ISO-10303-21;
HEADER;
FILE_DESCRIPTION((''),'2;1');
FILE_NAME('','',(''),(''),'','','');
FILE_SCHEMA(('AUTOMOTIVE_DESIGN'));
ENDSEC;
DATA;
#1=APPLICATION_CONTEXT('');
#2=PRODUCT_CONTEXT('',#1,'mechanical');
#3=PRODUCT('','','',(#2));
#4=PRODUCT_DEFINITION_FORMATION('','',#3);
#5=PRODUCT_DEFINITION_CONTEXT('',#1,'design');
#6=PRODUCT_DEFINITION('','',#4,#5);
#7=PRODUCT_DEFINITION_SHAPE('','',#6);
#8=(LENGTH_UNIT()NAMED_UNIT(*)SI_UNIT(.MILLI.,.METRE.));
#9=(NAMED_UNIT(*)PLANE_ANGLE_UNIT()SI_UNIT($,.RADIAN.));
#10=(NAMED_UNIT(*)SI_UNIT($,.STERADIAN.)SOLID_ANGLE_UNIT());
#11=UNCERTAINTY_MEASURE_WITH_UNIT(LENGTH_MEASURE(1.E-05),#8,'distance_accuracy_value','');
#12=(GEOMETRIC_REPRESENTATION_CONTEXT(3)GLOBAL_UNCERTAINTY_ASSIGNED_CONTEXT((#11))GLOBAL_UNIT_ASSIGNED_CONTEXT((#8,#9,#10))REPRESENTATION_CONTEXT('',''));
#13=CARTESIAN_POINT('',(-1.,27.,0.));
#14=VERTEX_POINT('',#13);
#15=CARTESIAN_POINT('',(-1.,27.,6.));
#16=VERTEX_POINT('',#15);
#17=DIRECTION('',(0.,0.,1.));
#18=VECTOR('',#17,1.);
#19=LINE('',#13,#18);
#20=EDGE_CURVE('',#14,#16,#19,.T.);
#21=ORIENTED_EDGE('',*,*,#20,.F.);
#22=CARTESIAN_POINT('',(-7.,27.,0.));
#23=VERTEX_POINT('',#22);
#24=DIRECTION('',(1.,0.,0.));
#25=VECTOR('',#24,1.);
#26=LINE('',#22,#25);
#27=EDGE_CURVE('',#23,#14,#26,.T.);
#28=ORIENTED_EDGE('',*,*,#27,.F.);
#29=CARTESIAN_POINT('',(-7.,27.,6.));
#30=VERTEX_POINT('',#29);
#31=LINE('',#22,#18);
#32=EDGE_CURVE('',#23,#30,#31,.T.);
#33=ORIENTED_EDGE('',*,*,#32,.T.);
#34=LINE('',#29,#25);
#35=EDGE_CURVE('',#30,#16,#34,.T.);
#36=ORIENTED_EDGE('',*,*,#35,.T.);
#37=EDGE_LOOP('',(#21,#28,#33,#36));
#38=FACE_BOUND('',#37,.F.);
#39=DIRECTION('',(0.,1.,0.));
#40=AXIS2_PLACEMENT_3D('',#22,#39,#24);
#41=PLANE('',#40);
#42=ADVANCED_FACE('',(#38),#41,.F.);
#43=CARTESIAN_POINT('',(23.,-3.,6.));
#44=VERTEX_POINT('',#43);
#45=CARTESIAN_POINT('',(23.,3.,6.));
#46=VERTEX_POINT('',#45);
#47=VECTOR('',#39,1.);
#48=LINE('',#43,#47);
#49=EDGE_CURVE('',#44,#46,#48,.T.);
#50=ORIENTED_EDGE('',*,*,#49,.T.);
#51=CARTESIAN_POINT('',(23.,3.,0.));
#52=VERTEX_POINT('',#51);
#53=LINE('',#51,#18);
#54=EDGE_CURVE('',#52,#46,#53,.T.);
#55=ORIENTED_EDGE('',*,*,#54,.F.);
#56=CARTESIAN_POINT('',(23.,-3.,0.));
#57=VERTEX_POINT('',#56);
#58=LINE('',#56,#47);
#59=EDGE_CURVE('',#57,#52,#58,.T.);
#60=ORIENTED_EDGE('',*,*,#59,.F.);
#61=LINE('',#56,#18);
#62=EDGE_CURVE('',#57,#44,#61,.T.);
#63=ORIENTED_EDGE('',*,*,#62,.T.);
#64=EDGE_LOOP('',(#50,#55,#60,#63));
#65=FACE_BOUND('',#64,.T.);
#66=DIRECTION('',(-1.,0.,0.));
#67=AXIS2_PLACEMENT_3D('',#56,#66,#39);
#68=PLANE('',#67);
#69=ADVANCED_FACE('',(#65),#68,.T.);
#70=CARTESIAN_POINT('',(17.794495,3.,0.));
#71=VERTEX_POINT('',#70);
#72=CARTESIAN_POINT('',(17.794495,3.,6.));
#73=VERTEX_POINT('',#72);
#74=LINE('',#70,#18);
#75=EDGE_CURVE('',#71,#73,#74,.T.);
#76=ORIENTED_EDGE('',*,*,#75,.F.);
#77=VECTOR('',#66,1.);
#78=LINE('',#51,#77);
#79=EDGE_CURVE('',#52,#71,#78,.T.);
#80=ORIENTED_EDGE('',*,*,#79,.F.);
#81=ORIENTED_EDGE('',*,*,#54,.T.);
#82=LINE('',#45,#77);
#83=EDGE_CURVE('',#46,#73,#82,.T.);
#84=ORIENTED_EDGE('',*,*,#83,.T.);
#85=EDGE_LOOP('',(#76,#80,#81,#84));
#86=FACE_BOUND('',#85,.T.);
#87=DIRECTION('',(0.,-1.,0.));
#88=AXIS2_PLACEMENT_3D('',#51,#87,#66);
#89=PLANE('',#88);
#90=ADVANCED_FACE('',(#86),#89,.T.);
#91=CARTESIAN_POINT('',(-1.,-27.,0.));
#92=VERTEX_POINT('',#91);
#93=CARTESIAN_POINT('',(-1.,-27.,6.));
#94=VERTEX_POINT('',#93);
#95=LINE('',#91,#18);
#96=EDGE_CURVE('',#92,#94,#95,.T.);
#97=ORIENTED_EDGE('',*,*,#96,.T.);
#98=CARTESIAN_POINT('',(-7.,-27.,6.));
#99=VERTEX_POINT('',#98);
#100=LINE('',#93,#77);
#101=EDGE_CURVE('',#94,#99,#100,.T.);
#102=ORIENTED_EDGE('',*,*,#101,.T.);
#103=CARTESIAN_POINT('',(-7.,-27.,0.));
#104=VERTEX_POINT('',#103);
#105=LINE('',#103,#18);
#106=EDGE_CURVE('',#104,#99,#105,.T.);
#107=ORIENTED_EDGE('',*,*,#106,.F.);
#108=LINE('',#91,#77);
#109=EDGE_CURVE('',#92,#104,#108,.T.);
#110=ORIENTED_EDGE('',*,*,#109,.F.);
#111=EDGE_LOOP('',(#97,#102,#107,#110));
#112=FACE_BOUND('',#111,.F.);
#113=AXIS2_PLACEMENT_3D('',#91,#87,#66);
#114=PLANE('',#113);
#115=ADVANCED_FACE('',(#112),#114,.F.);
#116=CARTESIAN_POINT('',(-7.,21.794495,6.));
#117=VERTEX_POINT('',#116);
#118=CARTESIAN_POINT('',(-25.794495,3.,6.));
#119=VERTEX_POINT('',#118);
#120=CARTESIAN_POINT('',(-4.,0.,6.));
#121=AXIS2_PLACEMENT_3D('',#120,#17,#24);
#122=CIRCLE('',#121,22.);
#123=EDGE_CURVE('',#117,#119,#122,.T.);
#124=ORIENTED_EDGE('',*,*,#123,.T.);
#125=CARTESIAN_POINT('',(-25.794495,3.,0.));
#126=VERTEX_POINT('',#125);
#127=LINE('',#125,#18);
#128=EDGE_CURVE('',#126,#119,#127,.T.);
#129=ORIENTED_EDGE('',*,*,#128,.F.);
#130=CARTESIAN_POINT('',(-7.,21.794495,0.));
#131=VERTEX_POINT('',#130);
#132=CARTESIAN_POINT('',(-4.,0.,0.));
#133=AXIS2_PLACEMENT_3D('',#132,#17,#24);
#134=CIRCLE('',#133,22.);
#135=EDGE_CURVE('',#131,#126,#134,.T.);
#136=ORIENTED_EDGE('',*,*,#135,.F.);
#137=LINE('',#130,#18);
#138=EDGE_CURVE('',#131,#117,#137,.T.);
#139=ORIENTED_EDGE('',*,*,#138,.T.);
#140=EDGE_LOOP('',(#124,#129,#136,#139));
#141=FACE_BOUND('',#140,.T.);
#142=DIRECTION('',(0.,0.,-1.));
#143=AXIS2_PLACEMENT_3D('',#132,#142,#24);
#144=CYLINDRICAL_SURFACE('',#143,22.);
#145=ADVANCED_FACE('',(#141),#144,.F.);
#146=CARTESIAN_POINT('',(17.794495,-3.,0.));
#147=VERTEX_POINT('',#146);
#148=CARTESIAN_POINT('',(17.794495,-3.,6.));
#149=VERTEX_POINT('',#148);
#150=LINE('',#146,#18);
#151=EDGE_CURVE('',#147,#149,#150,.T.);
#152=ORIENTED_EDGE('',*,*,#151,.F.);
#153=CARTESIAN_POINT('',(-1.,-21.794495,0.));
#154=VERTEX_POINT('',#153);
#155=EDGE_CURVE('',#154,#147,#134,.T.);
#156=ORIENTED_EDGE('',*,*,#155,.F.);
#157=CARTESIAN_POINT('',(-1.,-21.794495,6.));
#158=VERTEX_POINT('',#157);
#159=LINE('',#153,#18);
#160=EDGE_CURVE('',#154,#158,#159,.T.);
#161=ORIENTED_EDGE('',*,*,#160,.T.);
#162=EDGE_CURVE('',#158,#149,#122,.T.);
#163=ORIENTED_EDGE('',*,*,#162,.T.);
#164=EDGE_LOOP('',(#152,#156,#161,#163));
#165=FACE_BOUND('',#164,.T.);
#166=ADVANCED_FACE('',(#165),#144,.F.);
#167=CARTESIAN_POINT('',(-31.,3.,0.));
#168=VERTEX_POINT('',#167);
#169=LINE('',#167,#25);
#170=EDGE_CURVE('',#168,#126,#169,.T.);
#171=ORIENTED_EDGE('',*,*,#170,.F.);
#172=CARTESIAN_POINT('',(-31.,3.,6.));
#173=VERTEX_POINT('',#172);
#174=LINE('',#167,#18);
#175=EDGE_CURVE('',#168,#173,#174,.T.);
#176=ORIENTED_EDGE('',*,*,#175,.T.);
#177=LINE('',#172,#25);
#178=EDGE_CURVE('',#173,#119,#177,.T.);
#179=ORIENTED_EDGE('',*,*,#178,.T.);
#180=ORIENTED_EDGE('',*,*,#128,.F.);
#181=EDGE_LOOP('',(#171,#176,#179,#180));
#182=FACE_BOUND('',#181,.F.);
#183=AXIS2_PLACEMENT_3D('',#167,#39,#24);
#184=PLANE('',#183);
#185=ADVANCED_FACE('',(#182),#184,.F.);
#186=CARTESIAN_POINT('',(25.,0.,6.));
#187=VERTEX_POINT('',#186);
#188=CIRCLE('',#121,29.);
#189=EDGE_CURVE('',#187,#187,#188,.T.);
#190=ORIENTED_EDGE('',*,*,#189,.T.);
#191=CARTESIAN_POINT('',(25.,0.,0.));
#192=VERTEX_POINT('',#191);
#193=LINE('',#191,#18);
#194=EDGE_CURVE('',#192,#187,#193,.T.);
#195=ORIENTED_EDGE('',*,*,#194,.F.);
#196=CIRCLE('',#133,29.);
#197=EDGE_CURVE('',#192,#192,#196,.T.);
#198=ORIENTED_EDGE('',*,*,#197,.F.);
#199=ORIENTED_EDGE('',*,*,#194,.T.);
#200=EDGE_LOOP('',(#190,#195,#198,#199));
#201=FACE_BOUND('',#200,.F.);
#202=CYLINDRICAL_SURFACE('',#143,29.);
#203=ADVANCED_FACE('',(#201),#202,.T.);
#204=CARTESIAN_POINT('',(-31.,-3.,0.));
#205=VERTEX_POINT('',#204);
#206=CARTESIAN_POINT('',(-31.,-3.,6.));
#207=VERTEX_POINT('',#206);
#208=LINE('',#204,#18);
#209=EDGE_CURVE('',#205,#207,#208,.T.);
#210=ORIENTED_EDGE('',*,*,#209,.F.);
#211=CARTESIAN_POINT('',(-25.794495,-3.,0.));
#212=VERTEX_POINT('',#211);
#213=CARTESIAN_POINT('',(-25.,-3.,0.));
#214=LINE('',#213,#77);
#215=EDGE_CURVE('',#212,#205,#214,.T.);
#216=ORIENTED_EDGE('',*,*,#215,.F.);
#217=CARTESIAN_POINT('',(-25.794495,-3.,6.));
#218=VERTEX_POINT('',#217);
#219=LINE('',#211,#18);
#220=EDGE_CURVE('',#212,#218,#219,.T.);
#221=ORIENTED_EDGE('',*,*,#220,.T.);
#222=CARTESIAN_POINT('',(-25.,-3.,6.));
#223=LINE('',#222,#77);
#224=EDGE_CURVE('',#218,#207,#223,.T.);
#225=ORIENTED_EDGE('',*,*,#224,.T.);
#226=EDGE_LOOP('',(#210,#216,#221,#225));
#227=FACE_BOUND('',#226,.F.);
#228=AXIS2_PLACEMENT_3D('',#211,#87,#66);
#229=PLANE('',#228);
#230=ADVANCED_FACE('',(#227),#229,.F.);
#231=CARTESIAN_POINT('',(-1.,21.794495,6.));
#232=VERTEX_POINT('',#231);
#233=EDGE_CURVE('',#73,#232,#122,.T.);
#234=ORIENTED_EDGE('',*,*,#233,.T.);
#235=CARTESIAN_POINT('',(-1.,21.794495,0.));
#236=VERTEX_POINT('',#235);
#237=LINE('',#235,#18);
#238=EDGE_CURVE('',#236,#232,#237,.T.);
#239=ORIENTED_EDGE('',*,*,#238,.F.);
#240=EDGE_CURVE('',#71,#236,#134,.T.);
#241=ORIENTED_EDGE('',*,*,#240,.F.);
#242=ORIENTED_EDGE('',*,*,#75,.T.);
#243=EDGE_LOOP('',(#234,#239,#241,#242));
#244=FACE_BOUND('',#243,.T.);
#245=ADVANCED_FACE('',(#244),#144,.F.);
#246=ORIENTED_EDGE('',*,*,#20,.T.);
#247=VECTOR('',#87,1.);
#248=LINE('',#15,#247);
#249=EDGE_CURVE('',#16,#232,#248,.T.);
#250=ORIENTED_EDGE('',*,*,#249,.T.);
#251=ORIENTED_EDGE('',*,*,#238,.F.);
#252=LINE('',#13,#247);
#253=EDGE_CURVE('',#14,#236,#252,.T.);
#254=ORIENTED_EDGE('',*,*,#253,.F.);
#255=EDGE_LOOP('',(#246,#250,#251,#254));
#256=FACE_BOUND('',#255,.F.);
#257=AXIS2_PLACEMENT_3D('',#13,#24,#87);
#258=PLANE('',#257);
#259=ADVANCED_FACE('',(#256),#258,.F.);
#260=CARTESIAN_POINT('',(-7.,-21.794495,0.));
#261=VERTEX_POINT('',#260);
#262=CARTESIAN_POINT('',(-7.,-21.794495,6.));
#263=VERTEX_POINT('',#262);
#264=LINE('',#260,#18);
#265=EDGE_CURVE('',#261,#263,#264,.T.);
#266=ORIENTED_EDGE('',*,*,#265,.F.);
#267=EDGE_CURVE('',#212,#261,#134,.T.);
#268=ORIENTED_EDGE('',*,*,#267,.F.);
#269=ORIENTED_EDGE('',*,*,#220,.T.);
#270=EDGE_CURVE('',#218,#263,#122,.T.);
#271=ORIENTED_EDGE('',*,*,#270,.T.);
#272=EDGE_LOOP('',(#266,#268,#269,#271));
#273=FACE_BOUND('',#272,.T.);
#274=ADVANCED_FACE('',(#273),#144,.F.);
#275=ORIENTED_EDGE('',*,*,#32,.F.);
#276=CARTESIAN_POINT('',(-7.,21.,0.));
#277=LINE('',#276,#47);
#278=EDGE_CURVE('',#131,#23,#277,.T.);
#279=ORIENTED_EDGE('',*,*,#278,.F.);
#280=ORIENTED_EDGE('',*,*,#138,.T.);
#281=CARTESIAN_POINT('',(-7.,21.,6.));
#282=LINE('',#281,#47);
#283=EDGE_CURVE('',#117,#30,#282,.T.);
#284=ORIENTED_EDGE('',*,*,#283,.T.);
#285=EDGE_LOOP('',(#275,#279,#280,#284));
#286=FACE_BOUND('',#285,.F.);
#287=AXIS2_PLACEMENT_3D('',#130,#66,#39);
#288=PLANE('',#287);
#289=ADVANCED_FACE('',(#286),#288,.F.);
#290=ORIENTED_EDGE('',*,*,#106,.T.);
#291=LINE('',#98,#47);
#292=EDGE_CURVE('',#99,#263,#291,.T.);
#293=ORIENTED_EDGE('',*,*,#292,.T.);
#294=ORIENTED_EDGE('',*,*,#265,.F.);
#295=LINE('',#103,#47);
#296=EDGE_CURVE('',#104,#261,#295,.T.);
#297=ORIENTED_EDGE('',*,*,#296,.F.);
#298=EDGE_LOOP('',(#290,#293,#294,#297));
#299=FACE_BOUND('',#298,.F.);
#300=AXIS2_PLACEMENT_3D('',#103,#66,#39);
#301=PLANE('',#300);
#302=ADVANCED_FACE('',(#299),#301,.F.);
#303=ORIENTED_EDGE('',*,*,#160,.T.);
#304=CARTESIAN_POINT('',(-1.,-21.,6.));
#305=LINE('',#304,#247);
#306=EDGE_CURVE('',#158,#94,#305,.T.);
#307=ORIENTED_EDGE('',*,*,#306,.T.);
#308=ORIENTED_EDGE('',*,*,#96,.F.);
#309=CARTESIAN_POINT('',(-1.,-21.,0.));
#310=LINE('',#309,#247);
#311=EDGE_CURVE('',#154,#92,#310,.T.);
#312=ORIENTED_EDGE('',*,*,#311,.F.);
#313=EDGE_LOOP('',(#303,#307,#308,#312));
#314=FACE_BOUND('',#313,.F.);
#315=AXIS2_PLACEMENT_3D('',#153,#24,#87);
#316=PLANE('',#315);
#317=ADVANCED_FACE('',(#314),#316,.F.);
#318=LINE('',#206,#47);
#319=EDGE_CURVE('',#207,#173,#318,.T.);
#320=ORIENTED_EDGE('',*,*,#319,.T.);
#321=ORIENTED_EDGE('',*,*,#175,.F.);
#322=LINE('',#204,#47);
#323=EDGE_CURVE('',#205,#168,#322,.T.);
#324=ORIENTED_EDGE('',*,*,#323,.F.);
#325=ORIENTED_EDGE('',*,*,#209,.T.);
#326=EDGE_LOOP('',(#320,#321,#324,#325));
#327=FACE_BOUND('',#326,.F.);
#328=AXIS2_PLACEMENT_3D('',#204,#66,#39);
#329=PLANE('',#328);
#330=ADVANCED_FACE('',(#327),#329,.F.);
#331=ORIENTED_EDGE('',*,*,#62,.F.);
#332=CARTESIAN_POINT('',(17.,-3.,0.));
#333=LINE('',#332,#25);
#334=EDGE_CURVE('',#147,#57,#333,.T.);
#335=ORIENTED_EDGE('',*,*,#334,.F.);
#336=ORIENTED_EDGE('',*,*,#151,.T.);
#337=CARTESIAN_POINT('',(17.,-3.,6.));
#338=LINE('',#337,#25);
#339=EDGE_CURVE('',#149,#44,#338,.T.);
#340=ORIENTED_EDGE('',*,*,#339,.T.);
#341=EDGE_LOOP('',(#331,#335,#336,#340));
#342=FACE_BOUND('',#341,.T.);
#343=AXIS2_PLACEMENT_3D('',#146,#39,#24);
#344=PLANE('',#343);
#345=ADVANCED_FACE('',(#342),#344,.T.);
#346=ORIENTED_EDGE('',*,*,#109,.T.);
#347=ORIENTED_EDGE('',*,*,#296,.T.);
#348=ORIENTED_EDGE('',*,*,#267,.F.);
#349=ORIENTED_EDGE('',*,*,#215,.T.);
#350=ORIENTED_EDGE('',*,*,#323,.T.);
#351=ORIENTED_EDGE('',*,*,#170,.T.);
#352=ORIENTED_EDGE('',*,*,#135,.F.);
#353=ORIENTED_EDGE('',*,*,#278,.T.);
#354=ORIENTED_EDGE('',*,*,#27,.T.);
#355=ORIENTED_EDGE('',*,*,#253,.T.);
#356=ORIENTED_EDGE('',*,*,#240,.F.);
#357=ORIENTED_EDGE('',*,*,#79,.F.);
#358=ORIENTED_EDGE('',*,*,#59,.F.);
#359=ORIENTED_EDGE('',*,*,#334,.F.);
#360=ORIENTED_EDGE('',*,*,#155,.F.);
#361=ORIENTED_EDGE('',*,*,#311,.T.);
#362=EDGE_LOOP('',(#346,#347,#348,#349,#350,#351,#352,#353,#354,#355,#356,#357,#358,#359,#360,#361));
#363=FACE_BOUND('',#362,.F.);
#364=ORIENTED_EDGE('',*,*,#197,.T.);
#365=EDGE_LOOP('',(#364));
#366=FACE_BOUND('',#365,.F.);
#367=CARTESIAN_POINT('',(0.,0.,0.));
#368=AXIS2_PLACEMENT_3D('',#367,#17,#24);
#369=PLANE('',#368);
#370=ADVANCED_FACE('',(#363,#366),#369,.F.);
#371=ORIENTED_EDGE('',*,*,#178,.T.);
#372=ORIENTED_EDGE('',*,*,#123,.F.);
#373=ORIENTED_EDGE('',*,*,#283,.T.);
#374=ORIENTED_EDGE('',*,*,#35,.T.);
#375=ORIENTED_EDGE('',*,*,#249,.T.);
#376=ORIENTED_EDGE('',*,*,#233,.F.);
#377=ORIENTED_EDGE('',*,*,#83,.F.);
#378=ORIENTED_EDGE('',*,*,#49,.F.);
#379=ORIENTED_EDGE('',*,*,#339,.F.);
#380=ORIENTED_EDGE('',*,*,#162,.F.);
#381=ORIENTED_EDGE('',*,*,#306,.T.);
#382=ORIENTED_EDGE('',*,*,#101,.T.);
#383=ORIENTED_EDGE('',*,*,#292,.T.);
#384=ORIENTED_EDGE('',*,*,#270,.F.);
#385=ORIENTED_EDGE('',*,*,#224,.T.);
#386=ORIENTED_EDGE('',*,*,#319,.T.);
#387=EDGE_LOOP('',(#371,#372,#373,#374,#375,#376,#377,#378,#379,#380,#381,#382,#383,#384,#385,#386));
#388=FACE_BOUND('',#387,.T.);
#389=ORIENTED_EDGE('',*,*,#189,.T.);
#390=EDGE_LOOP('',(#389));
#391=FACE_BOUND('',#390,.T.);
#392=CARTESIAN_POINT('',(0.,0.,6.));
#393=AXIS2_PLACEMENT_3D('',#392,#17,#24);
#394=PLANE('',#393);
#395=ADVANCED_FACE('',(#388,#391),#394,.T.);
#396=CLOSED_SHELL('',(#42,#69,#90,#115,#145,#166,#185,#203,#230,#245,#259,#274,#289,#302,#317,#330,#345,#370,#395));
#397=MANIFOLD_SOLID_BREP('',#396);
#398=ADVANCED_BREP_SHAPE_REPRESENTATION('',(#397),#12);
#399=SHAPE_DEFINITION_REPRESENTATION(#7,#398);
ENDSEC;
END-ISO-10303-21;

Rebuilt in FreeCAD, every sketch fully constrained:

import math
import FreeCAD as App
import Part
import Sketcher
from FreeCAD import Vector
Q = App.Units.Quantity

doc = App.newDocument("Part")
body = doc.addObject("PartDesign::Body", "Body")

# Sketch on XY plane
sketch1 = doc.addObject("Sketcher::SketchObject", "Sketch")
body.addObject(sketch1)
sketch1.AttachmentSupport = (doc.XY_Plane, [""])
sketch1.MapMode = "FlatFace"
sketch1.addGeometry(Part.Circle(Vector(-4, 0, 0), Vector(0, 0, 1), 29), False)
sketch1.addGeometry(Part.ArcOfCircle(Part.Circle(Vector(-4, 0, 0), Vector(0, 0, 1), 22), math.radians(-172), math.radians(-98)), False)
sketch1.addGeometry(Part.LineSegment(Vector(-26, -3, 0), Vector(-31, -3, 0)), False)
sketch1.addGeometry(Part.LineSegment(Vector(-31, -3, 0), Vector(-31, 3, 0)), False)
sketch1.addGeometry(Part.LineSegment(Vector(-31, 3, 0), Vector(-26, 3, 0)), False)
sketch1.addGeometry(Part.ArcOfCircle(Part.Circle(Vector(-4, 0, 0), Vector(0, 0, 1), 22), math.radians(98), math.radians(172)), False)
sketch1.addGeometry(Part.LineSegment(Vector(-7, 22, 0), Vector(-7, 27, 0)), False)
sketch1.addGeometry(Part.LineSegment(Vector(-7, 27, 0), Vector(-1, 27, 0)), False)
sketch1.addGeometry(Part.LineSegment(Vector(-1, 27, 0), Vector(-1, 22, 0)), False)
sketch1.addGeometry(Part.ArcOfCircle(Part.Circle(Vector(-4, 0, 0), Vector(0, 0, 1), 22), math.radians(8), math.radians(82)), False)
sketch1.addGeometry(Part.LineSegment(Vector(18, 3, 0), Vector(23, 3, 0)), False)
sketch1.addGeometry(Part.LineSegment(Vector(23, 3, 0), Vector(23, -3, 0)), False)
sketch1.addGeometry(Part.LineSegment(Vector(23, -3, 0), Vector(18, -3, 0)), False)
sketch1.addGeometry(Part.ArcOfCircle(Part.Circle(Vector(-4, 0, 0), Vector(0, 0, 1), 22), math.radians(-82), math.radians(-8)), False)
sketch1.addGeometry(Part.LineSegment(Vector(-1, -22, 0), Vector(-1, -27, 0)), False)
sketch1.addGeometry(Part.LineSegment(Vector(-1, -27, 0), Vector(-7, -27, 0)), False)
sketch1.addGeometry(Part.LineSegment(Vector(-7, -27, 0), Vector(-7, -22, 0)), False)
sketch1.addConstraint(Sketcher.Constraint("Coincident", 1, 1, 2, 1))
sketch1.addConstraint(Sketcher.Constraint("Coincident", 2, 2, 3, 1))
sketch1.addConstraint(Sketcher.Constraint("Coincident", 3, 2, 4, 1))
sketch1.addConstraint(Sketcher.Constraint("Coincident", 4, 2, 5, 2))
sketch1.addConstraint(Sketcher.Constraint("Coincident", 5, 1, 6, 1))
sketch1.addConstraint(Sketcher.Constraint("Coincident", 6, 2, 7, 1))
sketch1.addConstraint(Sketcher.Constraint("Coincident", 7, 2, 8, 1))
sketch1.addConstraint(Sketcher.Constraint("Coincident", 8, 2, 9, 2))
sketch1.addConstraint(Sketcher.Constraint("Coincident", 9, 1, 10, 1))
sketch1.addConstraint(Sketcher.Constraint("Coincident", 10, 2, 11, 1))
sketch1.addConstraint(Sketcher.Constraint("Coincident", 11, 2, 12, 1))
sketch1.addConstraint(Sketcher.Constraint("Coincident", 12, 2, 13, 2))
sketch1.addConstraint(Sketcher.Constraint("Coincident", 13, 1, 14, 1))
sketch1.addConstraint(Sketcher.Constraint("Coincident", 14, 2, 15, 1))
sketch1.addConstraint(Sketcher.Constraint("Coincident", 15, 2, 16, 1))
sketch1.addConstraint(Sketcher.Constraint("Coincident", 16, 2, 1, 2))
sketch1.addConstraint(Sketcher.Constraint("Horizontal", 2))
sketch1.addConstraint(Sketcher.Constraint("Vertical", 3))
sketch1.addConstraint(Sketcher.Constraint("Horizontal", 4))
sketch1.addConstraint(Sketcher.Constraint("Vertical", 6))
sketch1.addConstraint(Sketcher.Constraint("Horizontal", 7))
sketch1.addConstraint(Sketcher.Constraint("Vertical", 8))
sketch1.addConstraint(Sketcher.Constraint("Horizontal", 10))
sketch1.addConstraint(Sketcher.Constraint("Vertical", 11))
sketch1.addConstraint(Sketcher.Constraint("Horizontal", 12))
sketch1.addConstraint(Sketcher.Constraint("Vertical", 14))
sketch1.addConstraint(Sketcher.Constraint("Horizontal", 15))
sketch1.addConstraint(Sketcher.Constraint("Vertical", 16))
sketch1.addConstraint(Sketcher.Constraint("Coincident", 1, 3, 0, 3))
sketch1.addConstraint(Sketcher.Constraint("Coincident", 5, 3, 0, 3))
sketch1.addConstraint(Sketcher.Constraint("Coincident", 9, 3, 0, 3))
sketch1.addConstraint(Sketcher.Constraint("Coincident", 13, 3, 0, 3))
sketch1.addConstraint(Sketcher.Constraint("Equal", 1, 5))
sketch1.addConstraint(Sketcher.Constraint("Equal", 5, 9))
sketch1.addConstraint(Sketcher.Constraint("Equal", 9, 13))
sketch1.addConstraint(Sketcher.Constraint("Symmetric", 1, 1, 4, 2, -1))
sketch1.addConstraint(Sketcher.Constraint("Symmetric", 7, 2, 14, 2, -1))
sketch1.addConstraint(Sketcher.Constraint("Horizontal", 5, 1, 8, 2))
sketch1.addConstraint(Sketcher.Constraint("Horizontal", 4, 2, 9, 1))
sketch1.addConstraint(Sketcher.Constraint("Horizontal", 2, 2, 11, 2))
sketch1.addConstraint(Sketcher.Constraint("Horizontal", 13, 1, 16, 2))
sketch1.addConstraint(Sketcher.Constraint("Equal", 4, 10))
sketch1.addConstraint(Sketcher.Constraint("Equal", 15, 3))
sketch1.addConstraint(Sketcher.Constraint("Equal", 12, 6))
sketch1.addConstraint(Sketcher.Constraint("Radius", 1, Q("22 mm")))
sketch1.addConstraint(Sketcher.Constraint("DistanceX", 7, 1, 7, 2, Q("6 mm")))
sketch1.addConstraint(Sketcher.Constraint("Diameter", 0, Q("58 mm")))
sketch1.addConstraint(Sketcher.Constraint("DistanceX", 0, 3, -1, 1, Q("4 mm")))
sketch1.addConstraint(Sketcher.Constraint("DistanceX", 2, 2, -1, 1, Q("31 mm")))
pad1 = doc.addObject("PartDesign::Pad", "Pad")
body.addObject(pad1)
pad1.Profile = sketch1
pad1.Length = 6

doc.recompute()
